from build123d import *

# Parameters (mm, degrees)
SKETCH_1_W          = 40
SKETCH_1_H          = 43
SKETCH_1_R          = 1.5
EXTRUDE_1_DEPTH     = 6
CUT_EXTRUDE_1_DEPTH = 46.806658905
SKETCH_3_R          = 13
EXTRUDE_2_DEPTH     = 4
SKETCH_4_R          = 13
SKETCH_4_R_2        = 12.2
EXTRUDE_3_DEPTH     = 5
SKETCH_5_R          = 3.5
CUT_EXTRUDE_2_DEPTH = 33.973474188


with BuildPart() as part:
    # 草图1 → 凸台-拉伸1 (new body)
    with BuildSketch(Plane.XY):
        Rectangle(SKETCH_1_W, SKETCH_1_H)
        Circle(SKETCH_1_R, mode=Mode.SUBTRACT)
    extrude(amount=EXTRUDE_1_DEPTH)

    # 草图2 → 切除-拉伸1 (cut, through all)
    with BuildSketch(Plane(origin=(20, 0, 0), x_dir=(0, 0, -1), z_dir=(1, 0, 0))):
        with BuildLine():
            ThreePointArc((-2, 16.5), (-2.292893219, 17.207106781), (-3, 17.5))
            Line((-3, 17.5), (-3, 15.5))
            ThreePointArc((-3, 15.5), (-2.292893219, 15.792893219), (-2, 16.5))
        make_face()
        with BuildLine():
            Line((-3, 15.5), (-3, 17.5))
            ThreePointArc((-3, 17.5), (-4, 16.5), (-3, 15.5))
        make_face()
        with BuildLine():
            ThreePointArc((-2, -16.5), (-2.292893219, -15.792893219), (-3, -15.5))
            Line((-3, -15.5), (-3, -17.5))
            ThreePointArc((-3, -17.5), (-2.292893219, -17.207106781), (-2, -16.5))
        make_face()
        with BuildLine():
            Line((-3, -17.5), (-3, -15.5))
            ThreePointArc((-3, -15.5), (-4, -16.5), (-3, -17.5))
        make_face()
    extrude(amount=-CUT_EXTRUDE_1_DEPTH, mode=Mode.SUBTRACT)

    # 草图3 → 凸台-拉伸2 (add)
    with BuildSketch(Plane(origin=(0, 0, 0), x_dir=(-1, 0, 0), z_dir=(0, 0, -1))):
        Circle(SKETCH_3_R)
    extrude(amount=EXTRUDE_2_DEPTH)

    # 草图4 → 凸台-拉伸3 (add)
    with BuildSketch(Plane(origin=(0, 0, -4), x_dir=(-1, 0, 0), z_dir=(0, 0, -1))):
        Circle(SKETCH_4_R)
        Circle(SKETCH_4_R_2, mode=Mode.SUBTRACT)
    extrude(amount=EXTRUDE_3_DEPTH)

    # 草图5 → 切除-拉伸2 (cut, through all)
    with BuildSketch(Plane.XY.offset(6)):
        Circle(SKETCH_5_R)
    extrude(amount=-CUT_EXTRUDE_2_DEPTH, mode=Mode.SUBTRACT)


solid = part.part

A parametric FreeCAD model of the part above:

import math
import FreeCAD as App
import Part
import Sketcher

V = App.Vector
Q = App.Units.Quantity


def add_polygon(sketch, points):
    """Adds a closed chain of lines whose ends are joined by coincident constraints."""
    first, n = sketch.GeometryCount, len(points)
    for a, b in zip(points, points[1:] + points[:1]):
        sketch.addGeometry(Part.LineSegment(App.Vector(*a, 0), App.Vector(*b, 0)), False)
    for i in range(n):
        sketch.addConstraint(Sketcher.Constraint("Coincident", first + i, 2, first + (i + 1) % n, 1))

doc = App.newDocument("Part")
body = doc.addObject("PartDesign::Body", "Body")

sketch1 = body.newObject("Sketcher::SketchObject", "Sketch")
sketch1.AttachmentSupport = (doc.getObject("XY_Plane"), [""])
sketch1.MapMode = "FlatFace"
add_polygon(sketch1, [(-20, 21.5), (-20, -21.5), (20, -21.5), (20, 21.5)])
sketch1.addGeometry(Part.Circle(V(0, 0, 0), V(0, 0, 1), 1.5), False)
sketch1.addConstraint([
    Sketcher.Constraint("Vertical", 0),
    Sketcher.Constraint("Horizontal", 1),
    Sketcher.Constraint("Vertical", 2),
    Sketcher.Constraint("Horizontal", 3),
    Sketcher.Constraint("Coincident", 4, 3, -1, 1),
    Sketcher.Constraint("Symmetric", 0, 2, 2, 2, -1, 1),
    Sketcher.Constraint("Diameter", 4, Q("3 mm")),
    Sketcher.Constraint("DistanceX", 1, 1, 1, 2, Q("40 mm")),
    Sketcher.Constraint("DistanceY", 0, 2, 0, 1, Q("43 mm")),
])
pad1 = body.newObject("PartDesign::Pad", "Pad")
pad1.Profile = sketch1
pad1.Length = 6

sketch2 = body.newObject("Sketcher::SketchObject", "Sketch001")
sketch2.AttachmentSupport = (doc.getObject("YZ_Plane"), [""])
sketch2.MapMode = "FlatFace"
sketch2.AttachmentOffset = App.Placement(V(0, 0, 20), App.Rotation())
sketch2.addGeometry([
    Part.ArcOfCircle(Part.Circle(V(16.5, 3, 0), V(0, 0, 1), 1), math.radians(-90), math.radians(0)),
    Part.ArcOfCircle(Part.Circle(V(16.5, 3, 0), V(0, 0, 1), 1), math.radians(0), math.radians(180)),
    Part.ArcOfCircle(Part.Circle(V(16.5, 3, 0), V(0, 0, 1), 1), math.radians(-180), math.radians(-90)),
    Part.ArcOfCircle(Part.Circle(V(-16.5, 3, 0), V(0, 0, 1), 1), math.radians(-90), math.radians(0)),
    Part.ArcOfCircle(Part.Circle(V(-16.5, 3, 0), V(0, 0, 1), 1), math.radians(0), math.radians(180)),
    Part.ArcOfCircle(Part.Circle(V(-16.5, 3, 0), V(0, 0, 1), 1), math.radians(-180), math.radians(-90)),
], False)
sketch2.addConstraint([
    Sketcher.Constraint("Tangent", 0, 2, 1, 1),
    Sketcher.Constraint("Tangent", 1, 2, 2, 1),
    Sketcher.Constraint("Tangent", 2, 2, 0, 1),
    Sketcher.Constraint("Tangent", 3, 2, 4, 1),
    Sketcher.Constraint("Tangent", 4, 2, 5, 1),
    Sketcher.Constraint("Tangent", 5, 2, 3, 1),
    Sketcher.Constraint("Equal", 2, 3),
    Sketcher.Constraint("Symmetric", 0, 3, 3, 3, -2),
    Sketcher.Constraint("Horizontal", 5, 3, 0, 2),
    Sketcher.Constraint("Horizontal", 0, 2, 1, 2),
    Sketcher.Constraint("Horizontal", 1, 2, 3, 2),
    Sketcher.Constraint("Horizontal", 3, 2, 4, 2),
    Sketcher.Constraint("Vertical", 1, 3, 2, 2),
    Sketcher.Constraint("Vertical", 4, 3, 5, 2),
    Sketcher.Constraint("Radius", 0, Q("1 mm")),
    Sketcher.Constraint("DistanceY", -1, 1, 0, 3, Q("3 mm")),
    Sketcher.Constraint("DistanceX", 3, 3, 0, 3, Q("33 mm")),
])
pocket1 = body.newObject("PartDesign::Pocket", "Pocket")
pocket1.Profile = sketch2
pocket1.Type = "ThroughAll"

sketch3 = body.newObject("Sketcher::SketchObject", "Sketch002")
sketch3.AttachmentSupport = (doc.getObject("XY_Plane"), [""])
sketch3.MapMode = "FlatFace"
sketch3.addGeometry(Part.Circle(V(0, 0, 0), V(0, 0, 1), 13), False)
sketch3.addConstraint([
    Sketcher.Constraint("Coincident", 0, 3, -1, 1),
    Sketcher.Constraint("Diameter", 0, Q("26 mm")),
])
pad2 = body.newObject("PartDesign::Pad", "Pad001")
pad2.Profile = sketch3
pad2.Length = 4
pad2.Reversed = True

sketch4 = body.newObject("Sketcher::SketchObject", "Sketch003")
sketch4.AttachmentSupport = (doc.getObject("XY_Plane"), [""])
sketch4.MapMode = "FlatFace"
sketch4.AttachmentOffset = App.Placement(V(0, 0, -4), App.Rotation())
sketch4.addGeometry([
    Part.Circle(V(0, 0, 0), V(0, 0, 1), 13),
    Part.Circle(V(0, 0, 0), V(0, 0, 1), 12),
], False)
sketch4.addConstraint([
    Sketcher.Constraint("Coincident", 0, 3, -1, 1),
    Sketcher.Constraint("Coincident", 1, 3, -1, 1),
    Sketcher.Constraint("Diameter", 0, Q("26 mm")),
    Sketcher.Constraint("Diameter", 1, Q("24.4 mm")),
])
pad3 = body.newObject("PartDesign::Pad", "Pad002")
pad3.Profile = sketch4
pad3.Length = 5
pad3.Reversed = True

sketch5 = body.newObject("Sketcher::SketchObject", "Sketch004")
sketch5.AttachmentSupport = (doc.getObject("XY_Plane"), [""])
sketch5.MapMode = "FlatFace"
sketch5.AttachmentOffset = App.Placement(V(0, 0, 6), App.Rotation())
sketch5.addGeometry(Part.Circle(V(0, 0, 0), V(0, 0, 1), 3.5), False)
sketch5.addConstraint([
    Sketcher.Constraint("Coincident", 0, 3, -1, 1),
    Sketcher.Constraint("Diameter", 0, Q("7 mm")),
])
pocket2 = body.newObject("PartDesign::Pocket", "Pocket001")
pocket2.Profile = sketch5
pocket2.Type = "ThroughAll"

doc.recompute()
